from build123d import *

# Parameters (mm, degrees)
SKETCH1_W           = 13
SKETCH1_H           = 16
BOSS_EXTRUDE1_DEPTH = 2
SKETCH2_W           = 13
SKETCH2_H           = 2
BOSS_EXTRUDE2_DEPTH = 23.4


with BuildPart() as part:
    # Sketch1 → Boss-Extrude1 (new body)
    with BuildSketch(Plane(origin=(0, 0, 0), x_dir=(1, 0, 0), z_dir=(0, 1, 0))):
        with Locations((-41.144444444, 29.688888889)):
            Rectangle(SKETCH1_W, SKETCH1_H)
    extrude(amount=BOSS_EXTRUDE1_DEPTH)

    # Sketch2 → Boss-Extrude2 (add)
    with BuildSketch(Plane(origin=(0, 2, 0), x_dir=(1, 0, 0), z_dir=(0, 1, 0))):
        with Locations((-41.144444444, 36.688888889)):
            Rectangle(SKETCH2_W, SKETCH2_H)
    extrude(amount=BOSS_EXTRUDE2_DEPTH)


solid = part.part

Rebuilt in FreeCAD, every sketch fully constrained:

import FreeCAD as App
import Part
import Sketcher

doc = App.newDocument("Part")
params = doc.addObject("Spreadsheet::Sheet", "Params")
for row, (alias, value) in enumerate([
    ("sketch1_width", "13 mm"),
    ("sketch1_height", "16 mm"),
    ("pad1_length", "2 mm"),
    ("sketch2_width", "13 mm"),
    ("sketch2_height", "2 mm"),
    ("pad2_length", "23.4 mm"),
], start=1):
    params.set(f"A{row}", alias)
    params.set(f"B{row}", "=" + value)
    params.setAlias(f"B{row}", alias)

body = doc.addObject("PartDesign::Body", "Body")

# Sketch on XZ plane
sketch1 = body.newObject("Sketcher::SketchObject", "Sketch")
sketch1.AttachmentSupport = (doc.getObject("XZ_Plane"), [""])
sketch1.MapMode = "FlatFace"
sketch1.addGeometry([
    Part.LineSegment(App.Vector(-47.644444, -37.688889, 0), App.Vector(-47.644444, -21.688889, 0)),
    Part.LineSegment(App.Vector(-47.644444, -21.688889, 0), App.Vector(-34.644444, -21.688889, 0)),
    Part.LineSegment(App.Vector(-34.644444, -21.688889, 0), App.Vector(-34.644444, -37.688889, 0)),
    Part.LineSegment(App.Vector(-34.644444, -37.688889, 0), App.Vector(-47.644444, -37.688889, 0)),
], False)
sketch1.addConstraint([
    Sketcher.Constraint("Coincident", 0, 2, 1, 1),
    Sketcher.Constraint("Coincident", 1, 2, 2, 1),
    Sketcher.Constraint("Coincident", 2, 2, 3, 1),
    Sketcher.Constraint("Coincident", 3, 2, 0, 1),
    Sketcher.Constraint("Vertical", 0),
    Sketcher.Constraint("Horizontal", 1),
    Sketcher.Constraint("Vertical", 2),
    Sketcher.Constraint("Horizontal", 3),
    Sketcher.Constraint("DistanceX", 1, 1, 1, 2, 13.0),
    Sketcher.Constraint("DistanceY", 0, 1, 0, 2, 16.0),
    Sketcher.Constraint("DistanceY", 0, 2, -1, 1, 21.688889),
    Sketcher.Constraint("DistanceX", 0, 2, -1, 1, 47.644444),
])
sketch1.setExpression("Constraints[8]", "Params.sketch1_width")
sketch1.setExpression("Constraints[9]", "Params.sketch1_height")
pad1 = body.newObject("PartDesign::Pad", "Pad")
pad1.Profile = sketch1
pad1.setExpression("Length", "Params.pad1_length")
pad1.Reversed = True

# Sketch on XZ plane
sketch2 = body.newObject("Sketcher::SketchObject", "Sketch001")
sketch2.AttachmentSupport = (doc.getObject("XZ_Plane"), [""])
sketch2.MapMode = "FlatFace"
sketch2.AttachmentOffset = App.Placement(App.Vector(0, 0, -2), App.Rotation())
sketch2.addGeometry([
    Part.LineSegment(App.Vector(-47.644444, -37.688889, 0), App.Vector(-47.644444, -35.688889, 0)),
    Part.LineSegment(App.Vector(-47.644444, -35.688889, 0), App.Vector(-34.644444, -35.688889, 0)),
    Part.LineSegment(App.Vector(-34.644444, -35.688889, 0), App.Vector(-34.644444, -37.688889, 0)),
    Part.LineSegment(App.Vector(-34.644444, -37.688889, 0), App.Vector(-47.644444, -37.688889, 0)),
], False)
sketch2.addConstraint([
    Sketcher.Constraint("Coincident", 0, 2, 1, 1),
    Sketcher.Constraint("Coincident", 1, 2, 2, 1),
    Sketcher.Constraint("Coincident", 2, 2, 3, 1),
    Sketcher.Constraint("Coincident", 3, 2, 0, 1),
    Sketcher.Constraint("Vertical", 0),
    Sketcher.Constraint("Horizontal", 1),
    Sketcher.Constraint("Vertical", 2),
    Sketcher.Constraint("Horizontal", 3),
    Sketcher.Constraint("DistanceX", 1, 1, 1, 2, 13.0),
    Sketcher.Constraint("DistanceY", 0, 1, 0, 2, 2.0),
    Sketcher.Constraint("DistanceY", 0, 2, -1, 1, 35.688889),
    Sketcher.Constraint("DistanceX", 0, 2, -1, 1, 47.644444),
])
sketch2.setExpression("Constraints[8]", "Params.sketch2_width")
sketch2.setExpression("Constraints[9]", "Params.sketch2_height")
pad2 = body.newObject("PartDesign::Pad", "Pad001")
pad2.Profile = sketch2
pad2.setExpression("Length", "Params.pad2_length")
pad2.Reversed = True

doc.recompute()
